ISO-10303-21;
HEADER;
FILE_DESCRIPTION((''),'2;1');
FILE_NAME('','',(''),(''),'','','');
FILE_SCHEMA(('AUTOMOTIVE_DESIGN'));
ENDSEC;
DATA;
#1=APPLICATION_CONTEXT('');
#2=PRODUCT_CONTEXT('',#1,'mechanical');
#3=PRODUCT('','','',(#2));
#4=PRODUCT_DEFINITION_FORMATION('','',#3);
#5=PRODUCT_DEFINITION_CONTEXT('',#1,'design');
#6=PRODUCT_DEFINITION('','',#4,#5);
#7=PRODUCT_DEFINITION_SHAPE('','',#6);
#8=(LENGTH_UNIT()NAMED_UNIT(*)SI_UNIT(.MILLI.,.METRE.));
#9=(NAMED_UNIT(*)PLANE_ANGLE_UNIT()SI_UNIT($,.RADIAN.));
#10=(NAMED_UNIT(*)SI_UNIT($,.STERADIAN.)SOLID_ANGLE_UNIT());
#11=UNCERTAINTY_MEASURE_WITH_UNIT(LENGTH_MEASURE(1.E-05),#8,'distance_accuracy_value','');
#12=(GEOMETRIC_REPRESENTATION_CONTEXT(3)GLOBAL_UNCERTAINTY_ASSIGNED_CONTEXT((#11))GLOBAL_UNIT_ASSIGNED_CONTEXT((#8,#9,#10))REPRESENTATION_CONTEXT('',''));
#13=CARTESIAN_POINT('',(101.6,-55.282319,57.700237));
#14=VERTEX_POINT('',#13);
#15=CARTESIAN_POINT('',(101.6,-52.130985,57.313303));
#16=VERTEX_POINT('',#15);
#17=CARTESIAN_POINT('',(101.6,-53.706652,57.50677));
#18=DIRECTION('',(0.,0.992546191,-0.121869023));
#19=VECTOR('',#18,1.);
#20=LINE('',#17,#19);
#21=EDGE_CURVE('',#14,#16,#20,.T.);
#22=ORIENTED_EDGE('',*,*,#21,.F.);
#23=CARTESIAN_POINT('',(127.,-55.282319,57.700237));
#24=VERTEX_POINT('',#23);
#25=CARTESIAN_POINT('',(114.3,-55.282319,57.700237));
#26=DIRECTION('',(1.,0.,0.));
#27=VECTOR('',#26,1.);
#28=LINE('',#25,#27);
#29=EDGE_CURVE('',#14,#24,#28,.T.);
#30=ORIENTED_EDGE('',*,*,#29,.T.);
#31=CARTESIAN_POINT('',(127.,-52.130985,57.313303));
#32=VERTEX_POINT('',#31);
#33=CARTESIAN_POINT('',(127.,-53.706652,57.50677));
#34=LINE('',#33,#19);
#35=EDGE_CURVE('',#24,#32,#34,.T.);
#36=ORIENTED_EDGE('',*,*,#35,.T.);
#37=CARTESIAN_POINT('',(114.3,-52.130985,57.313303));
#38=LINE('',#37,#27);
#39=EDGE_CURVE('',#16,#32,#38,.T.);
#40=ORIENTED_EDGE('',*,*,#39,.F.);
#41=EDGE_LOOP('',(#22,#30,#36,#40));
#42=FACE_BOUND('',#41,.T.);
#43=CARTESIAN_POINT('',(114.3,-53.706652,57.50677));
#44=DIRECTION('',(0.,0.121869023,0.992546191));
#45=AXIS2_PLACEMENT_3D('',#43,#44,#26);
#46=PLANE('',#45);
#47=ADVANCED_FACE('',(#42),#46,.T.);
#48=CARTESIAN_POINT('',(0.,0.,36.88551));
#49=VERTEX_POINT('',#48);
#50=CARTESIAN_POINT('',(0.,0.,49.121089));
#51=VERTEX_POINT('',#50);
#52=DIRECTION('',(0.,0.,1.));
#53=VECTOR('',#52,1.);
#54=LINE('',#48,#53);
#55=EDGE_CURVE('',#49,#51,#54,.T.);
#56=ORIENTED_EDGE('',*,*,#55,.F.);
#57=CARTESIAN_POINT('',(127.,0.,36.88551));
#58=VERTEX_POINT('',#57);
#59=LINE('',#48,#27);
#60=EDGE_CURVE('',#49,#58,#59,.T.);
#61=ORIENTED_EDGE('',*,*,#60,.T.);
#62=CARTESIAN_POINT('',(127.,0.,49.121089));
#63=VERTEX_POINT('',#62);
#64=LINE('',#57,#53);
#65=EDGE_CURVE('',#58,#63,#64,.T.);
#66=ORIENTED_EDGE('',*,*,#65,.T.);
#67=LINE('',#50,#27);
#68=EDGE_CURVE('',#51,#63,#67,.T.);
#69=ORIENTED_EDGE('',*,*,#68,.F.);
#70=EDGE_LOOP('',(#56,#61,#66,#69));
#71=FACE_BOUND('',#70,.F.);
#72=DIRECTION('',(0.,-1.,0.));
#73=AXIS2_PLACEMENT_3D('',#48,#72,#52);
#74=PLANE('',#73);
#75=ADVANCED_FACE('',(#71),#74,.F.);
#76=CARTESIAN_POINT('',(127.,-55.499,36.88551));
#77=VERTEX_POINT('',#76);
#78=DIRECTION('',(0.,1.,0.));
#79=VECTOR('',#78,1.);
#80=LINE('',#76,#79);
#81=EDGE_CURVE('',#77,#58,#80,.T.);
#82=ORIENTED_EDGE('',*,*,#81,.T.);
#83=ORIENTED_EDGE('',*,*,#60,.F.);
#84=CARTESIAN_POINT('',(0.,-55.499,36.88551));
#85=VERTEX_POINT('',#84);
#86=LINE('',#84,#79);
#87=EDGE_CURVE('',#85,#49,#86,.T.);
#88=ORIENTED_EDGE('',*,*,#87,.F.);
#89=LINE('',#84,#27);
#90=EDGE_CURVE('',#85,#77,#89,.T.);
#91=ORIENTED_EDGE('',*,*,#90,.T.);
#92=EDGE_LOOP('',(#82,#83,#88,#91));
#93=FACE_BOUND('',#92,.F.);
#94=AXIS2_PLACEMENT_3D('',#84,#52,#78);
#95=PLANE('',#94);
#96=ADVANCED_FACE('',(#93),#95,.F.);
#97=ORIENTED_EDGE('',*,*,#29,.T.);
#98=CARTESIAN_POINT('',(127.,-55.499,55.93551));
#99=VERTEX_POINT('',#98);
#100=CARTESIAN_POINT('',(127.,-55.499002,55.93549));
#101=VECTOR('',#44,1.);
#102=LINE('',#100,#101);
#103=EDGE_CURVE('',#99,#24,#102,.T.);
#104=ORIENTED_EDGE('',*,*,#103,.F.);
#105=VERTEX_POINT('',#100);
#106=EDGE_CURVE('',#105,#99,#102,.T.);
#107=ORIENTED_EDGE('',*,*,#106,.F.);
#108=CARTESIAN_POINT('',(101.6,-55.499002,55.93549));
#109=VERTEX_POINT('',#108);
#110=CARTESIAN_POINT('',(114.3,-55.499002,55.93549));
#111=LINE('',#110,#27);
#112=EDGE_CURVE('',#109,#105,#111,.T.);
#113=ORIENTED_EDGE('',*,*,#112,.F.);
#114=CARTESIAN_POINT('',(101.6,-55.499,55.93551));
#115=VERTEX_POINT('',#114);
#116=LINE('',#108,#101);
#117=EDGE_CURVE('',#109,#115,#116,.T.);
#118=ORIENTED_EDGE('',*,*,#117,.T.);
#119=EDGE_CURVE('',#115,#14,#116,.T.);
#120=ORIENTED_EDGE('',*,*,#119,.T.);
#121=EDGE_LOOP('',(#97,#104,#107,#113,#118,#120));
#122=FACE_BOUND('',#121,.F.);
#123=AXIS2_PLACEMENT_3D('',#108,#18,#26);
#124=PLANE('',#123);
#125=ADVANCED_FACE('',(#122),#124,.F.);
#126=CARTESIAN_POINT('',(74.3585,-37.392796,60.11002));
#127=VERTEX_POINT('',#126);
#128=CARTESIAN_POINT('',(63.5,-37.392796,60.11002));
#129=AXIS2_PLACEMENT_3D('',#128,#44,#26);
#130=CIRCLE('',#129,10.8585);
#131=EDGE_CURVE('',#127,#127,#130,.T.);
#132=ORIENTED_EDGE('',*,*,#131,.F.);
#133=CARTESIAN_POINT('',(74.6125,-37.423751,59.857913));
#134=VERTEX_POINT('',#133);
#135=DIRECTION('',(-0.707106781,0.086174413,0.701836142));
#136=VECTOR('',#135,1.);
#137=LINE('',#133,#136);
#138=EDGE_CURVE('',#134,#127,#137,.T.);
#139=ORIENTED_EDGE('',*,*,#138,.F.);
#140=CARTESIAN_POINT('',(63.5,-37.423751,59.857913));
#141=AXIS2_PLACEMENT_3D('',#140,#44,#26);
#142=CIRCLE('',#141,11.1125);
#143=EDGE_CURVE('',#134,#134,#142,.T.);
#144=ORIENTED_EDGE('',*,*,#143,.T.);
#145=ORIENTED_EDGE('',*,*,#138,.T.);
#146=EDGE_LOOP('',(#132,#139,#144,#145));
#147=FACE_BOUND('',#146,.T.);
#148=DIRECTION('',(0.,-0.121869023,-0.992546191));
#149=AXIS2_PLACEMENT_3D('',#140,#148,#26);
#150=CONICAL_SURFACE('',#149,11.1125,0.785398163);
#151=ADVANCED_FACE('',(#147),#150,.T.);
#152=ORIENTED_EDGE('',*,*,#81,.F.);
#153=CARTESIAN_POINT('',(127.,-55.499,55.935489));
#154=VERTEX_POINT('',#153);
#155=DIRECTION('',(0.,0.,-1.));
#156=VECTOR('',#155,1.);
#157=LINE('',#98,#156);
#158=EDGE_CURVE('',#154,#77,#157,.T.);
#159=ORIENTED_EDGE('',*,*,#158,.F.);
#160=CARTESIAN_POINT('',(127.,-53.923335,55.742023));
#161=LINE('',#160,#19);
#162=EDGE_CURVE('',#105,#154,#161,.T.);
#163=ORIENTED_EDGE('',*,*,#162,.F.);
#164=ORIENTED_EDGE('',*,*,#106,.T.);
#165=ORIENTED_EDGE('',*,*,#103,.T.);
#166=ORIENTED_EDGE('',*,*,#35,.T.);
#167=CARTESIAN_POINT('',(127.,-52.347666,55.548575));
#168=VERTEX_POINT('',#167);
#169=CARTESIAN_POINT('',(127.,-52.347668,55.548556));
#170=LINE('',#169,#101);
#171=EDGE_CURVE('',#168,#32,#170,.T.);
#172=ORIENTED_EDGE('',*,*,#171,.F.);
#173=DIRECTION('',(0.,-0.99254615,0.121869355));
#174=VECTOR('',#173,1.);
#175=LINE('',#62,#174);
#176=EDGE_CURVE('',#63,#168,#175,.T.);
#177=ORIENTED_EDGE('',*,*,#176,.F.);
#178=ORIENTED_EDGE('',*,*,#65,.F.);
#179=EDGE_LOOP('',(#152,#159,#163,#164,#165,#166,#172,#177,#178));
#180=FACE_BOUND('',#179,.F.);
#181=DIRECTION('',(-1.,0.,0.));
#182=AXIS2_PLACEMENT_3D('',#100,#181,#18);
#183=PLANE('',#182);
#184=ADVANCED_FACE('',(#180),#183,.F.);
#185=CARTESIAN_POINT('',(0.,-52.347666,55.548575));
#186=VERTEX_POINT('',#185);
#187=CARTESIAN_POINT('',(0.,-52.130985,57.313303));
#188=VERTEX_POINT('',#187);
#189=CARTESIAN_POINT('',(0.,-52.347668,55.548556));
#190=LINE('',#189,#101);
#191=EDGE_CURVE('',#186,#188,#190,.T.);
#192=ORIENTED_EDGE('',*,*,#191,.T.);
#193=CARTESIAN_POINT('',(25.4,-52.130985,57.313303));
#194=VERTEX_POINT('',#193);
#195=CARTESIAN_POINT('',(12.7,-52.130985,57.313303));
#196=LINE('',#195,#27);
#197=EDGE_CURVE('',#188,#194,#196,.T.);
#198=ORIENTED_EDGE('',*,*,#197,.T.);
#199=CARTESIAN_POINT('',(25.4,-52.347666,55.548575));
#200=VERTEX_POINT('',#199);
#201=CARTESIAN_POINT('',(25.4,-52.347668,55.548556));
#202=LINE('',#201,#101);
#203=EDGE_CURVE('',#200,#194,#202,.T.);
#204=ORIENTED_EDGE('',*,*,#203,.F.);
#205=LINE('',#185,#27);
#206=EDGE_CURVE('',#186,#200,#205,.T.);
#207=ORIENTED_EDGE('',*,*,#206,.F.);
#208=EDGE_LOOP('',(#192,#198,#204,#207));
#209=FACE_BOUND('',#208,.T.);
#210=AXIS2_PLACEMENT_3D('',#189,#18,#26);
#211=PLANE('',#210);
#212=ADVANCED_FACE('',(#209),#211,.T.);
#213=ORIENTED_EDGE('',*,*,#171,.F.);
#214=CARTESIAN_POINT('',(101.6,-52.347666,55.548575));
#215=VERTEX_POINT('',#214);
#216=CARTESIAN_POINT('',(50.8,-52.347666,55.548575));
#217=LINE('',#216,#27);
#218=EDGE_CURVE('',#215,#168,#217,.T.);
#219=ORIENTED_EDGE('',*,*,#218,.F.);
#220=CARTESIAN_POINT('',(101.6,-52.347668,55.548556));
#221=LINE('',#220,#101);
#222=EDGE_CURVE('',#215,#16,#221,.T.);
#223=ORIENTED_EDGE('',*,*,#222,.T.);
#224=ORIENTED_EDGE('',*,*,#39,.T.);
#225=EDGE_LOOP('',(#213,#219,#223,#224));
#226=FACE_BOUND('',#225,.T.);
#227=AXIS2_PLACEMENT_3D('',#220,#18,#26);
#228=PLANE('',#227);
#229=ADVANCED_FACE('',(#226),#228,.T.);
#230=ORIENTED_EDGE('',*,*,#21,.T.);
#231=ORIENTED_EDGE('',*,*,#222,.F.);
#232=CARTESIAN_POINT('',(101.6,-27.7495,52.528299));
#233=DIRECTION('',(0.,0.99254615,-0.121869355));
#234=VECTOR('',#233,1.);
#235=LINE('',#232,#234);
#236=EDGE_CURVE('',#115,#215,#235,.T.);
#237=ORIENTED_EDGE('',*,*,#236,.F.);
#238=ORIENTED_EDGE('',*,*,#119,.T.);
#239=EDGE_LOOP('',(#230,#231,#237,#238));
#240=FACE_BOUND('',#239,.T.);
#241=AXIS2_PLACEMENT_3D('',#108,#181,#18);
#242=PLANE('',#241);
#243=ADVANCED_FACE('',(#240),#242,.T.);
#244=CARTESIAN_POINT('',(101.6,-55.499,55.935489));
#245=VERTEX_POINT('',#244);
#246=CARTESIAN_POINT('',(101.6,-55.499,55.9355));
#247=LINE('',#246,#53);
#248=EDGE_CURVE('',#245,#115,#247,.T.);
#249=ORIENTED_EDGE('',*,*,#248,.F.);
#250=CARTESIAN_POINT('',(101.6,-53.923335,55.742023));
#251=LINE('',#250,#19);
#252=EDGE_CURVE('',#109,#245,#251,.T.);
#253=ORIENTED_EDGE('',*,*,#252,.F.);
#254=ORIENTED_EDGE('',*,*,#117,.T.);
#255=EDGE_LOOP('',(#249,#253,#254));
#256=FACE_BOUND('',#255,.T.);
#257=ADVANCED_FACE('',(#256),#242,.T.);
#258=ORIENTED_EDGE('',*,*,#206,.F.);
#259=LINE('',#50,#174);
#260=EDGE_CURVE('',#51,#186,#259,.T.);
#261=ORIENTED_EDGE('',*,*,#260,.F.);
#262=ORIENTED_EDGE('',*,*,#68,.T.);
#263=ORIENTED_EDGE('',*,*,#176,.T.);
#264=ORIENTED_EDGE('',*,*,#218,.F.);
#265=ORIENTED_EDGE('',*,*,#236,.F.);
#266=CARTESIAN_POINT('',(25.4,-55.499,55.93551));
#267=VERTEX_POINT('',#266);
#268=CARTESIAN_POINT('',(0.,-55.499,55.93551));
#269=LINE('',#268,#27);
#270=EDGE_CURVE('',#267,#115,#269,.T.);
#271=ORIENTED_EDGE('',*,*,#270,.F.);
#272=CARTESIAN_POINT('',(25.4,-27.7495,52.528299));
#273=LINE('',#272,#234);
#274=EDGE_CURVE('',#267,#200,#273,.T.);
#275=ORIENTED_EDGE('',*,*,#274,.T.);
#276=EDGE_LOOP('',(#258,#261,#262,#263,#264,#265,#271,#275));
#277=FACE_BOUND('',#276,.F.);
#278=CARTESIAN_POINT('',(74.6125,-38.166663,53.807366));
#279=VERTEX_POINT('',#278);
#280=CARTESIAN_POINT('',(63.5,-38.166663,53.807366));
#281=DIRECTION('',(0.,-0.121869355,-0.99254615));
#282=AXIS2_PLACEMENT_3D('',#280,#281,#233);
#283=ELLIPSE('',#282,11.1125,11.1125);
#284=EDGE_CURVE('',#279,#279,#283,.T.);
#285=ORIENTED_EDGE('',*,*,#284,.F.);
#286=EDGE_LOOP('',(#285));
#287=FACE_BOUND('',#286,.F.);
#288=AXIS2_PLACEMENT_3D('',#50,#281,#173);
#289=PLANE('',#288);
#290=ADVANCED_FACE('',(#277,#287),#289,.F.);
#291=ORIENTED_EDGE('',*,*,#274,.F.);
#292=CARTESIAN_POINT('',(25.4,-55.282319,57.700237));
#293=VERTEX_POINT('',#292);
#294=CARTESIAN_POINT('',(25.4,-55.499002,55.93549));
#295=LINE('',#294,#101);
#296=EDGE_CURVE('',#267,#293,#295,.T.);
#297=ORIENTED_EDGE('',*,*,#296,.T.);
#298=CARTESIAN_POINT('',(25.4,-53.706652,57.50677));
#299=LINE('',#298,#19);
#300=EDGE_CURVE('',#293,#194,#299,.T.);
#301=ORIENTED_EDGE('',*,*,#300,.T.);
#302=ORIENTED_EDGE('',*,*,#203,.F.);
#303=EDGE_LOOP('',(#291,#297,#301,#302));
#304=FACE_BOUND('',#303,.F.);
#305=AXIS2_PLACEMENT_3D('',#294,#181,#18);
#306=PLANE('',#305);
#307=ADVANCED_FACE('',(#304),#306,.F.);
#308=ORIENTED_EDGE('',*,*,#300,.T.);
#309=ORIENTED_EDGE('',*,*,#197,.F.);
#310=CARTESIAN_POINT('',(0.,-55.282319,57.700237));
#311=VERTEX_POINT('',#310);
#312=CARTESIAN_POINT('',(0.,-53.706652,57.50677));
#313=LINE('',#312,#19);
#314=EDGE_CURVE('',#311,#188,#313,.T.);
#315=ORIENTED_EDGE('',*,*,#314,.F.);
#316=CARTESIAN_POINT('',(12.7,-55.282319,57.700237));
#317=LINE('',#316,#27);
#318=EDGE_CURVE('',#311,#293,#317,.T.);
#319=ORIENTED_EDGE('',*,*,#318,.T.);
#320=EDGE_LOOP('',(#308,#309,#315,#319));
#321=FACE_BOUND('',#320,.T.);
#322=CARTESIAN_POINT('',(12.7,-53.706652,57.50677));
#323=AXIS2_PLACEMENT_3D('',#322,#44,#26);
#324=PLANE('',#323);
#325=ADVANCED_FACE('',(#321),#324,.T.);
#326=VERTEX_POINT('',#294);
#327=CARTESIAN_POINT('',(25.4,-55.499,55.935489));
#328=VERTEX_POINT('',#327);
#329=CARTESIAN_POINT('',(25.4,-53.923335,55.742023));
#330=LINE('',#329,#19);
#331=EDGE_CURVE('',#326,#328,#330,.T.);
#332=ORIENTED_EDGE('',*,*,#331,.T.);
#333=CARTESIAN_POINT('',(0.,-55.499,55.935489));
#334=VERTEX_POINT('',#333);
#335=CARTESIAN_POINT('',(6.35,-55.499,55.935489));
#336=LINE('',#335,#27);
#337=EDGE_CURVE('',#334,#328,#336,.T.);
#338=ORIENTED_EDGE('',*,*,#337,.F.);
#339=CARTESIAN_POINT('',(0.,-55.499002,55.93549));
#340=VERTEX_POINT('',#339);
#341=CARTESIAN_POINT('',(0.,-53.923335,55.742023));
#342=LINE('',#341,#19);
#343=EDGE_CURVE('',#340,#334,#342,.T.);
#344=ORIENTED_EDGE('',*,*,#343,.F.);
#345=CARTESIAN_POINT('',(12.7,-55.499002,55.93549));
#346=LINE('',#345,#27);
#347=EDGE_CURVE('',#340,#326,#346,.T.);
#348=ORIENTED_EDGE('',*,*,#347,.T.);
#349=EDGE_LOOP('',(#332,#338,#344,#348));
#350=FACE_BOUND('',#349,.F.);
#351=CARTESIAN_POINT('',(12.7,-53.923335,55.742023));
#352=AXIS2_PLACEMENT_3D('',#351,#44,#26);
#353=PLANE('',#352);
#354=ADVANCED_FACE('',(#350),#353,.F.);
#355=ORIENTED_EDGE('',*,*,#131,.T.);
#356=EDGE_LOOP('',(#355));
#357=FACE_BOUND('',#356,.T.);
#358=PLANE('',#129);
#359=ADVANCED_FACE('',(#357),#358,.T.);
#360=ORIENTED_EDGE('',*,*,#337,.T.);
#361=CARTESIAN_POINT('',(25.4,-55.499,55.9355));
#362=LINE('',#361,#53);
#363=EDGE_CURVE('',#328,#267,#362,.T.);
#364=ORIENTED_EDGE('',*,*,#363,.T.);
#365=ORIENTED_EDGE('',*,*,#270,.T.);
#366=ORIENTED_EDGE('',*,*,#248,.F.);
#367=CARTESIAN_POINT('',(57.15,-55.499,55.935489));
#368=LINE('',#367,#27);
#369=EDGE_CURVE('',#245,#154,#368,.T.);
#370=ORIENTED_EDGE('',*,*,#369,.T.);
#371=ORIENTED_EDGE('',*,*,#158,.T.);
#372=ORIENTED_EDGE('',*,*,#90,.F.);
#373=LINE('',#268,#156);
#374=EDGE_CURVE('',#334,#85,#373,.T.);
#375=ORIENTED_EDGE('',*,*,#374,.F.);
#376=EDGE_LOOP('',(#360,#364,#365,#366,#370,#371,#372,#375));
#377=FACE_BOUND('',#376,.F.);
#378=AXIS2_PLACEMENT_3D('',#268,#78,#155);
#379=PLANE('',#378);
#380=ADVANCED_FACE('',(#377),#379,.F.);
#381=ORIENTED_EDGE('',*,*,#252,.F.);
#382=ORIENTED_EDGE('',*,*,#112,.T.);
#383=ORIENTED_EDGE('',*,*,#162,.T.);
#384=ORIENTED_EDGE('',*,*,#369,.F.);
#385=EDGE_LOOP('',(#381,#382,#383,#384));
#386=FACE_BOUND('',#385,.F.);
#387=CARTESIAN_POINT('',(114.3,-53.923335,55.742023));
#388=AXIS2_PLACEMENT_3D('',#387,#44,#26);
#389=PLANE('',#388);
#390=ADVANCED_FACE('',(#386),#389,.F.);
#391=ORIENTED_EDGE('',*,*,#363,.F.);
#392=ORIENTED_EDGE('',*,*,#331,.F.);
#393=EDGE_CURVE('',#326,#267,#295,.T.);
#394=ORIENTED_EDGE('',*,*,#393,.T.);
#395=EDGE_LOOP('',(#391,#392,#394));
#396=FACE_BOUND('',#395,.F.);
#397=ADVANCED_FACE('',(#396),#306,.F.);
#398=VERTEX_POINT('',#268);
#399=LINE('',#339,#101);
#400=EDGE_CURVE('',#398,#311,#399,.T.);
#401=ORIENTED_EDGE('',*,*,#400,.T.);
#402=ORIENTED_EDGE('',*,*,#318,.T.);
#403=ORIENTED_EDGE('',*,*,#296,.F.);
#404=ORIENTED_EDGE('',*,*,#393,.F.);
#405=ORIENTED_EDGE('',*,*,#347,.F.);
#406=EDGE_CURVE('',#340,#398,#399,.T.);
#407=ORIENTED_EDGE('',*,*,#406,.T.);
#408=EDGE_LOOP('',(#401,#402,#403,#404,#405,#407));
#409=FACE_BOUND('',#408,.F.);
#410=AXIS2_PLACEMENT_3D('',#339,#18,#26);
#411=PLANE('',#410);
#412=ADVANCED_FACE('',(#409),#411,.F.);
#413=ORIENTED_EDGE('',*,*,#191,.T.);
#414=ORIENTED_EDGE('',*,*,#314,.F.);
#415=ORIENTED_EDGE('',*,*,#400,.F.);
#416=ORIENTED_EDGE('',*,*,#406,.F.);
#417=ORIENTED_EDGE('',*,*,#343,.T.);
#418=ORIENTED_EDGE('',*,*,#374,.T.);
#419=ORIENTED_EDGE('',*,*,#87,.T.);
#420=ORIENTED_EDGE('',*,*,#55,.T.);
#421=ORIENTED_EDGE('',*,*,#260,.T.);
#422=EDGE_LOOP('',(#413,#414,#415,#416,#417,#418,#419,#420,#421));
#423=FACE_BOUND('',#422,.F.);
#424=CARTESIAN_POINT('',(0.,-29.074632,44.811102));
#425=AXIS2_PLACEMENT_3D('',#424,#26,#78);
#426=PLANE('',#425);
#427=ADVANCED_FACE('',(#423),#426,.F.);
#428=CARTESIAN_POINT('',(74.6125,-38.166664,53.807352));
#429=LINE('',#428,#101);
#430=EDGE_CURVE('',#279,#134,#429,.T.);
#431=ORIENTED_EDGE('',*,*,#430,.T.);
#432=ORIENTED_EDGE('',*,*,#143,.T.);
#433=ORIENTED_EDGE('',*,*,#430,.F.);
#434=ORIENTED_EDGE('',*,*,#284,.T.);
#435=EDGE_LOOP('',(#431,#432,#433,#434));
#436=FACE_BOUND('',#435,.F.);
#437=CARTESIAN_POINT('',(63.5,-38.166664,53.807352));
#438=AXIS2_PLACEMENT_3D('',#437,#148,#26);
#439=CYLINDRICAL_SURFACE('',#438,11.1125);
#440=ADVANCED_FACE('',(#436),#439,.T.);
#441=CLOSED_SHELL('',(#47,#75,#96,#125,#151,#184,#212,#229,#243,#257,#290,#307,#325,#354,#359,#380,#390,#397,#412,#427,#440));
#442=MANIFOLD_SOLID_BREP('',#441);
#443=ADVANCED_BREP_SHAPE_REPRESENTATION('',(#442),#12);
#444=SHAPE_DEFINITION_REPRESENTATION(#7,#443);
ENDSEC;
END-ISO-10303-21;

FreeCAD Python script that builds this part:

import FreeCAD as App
import Part
import Sketcher

V = App.Vector
Q = App.Units.Quantity


def edges_at(feature, points):
    """Names of the edges that pass closest to the given points."""
    edges = feature.Shape.Edges
    near = lambda p: min(range(len(edges)), key=lambda i: edges[i].distToShape(Part.Vertex(*p))[0])
    return sorted({f"Edge{near(p) + 1}" for p in points})


def add_polygon(sketch, points):
    """Adds a closed chain of lines whose ends are joined by coincident constraints."""
    first, n = sketch.GeometryCount, len(points)
    for a, b in zip(points, points[1:] + points[:1]):
        sketch.addGeometry(Part.LineSegment(App.Vector(*a, 0), App.Vector(*b, 0)), False)
    for i in range(n):
        sketch.addConstraint(Sketcher.Constraint("Coincident", first + i, 2, first + (i + 1) % n, 1))

doc = App.newDocument("Part")
params = doc.addObject("Spreadsheet::Sheet", "Params")
for row, (alias, value) in enumerate([
    ("sketch1_height", "0.75 in"),
    ("sketch1_width", "2.185 in"),
    ("pad1_length", "5 in"),
    ("sketch2_diameter", "0.875 in"),
    ("pad2_length", "0.25 in"),
    ("chamfer_size", "0.01 in"),
    ("sketch3_width", "1 in"),
    ("sketch3_height", "0.125 in"),
    ("pad3_length", "0.07 in"),
], start=1):
    params.set(f"A{row}", alias)
    params.set(f"B{row}", "=" + value)
    params.setAlias(f"B{row}", alias)

body = doc.addObject("PartDesign::Body", "Body")

# Sketch on YZ plane
sketch1 = body.newObject("Sketcher::SketchObject", "Sketch")
sketch1.AttachmentSupport = (doc.getObject("YZ_Plane"), [""])
sketch1.MapMode = "FlatFace"
add_polygon(sketch1, [(-55, 37), (0, 37), (0, 49), (-55, 56)])  # lines 0-3
sketch1.addConstraint([
    Sketcher.Constraint("Horizontal", 0),
    Sketcher.Constraint("Vertical", 1),
    Sketcher.Constraint("Vertical", 3),
    Sketcher.Constraint("PointOnObject", 0, 2, -2),
    Sketcher.Constraint("Angle", 2, Q("172.999999 deg")),
    Sketcher.Constraint("DistanceY", 3, 2, 3, 1, Q("0.75 in")),
    Sketcher.Constraint("DistanceX", 0, 1, 0, 2, Q("2.185 in")),
    Sketcher.Constraint("DistanceY", -1, 1, 0, 2, Q("36.88551 mm")),
])
sketch1.setExpression("Constraints[9]", "Params.sketch1_height")
sketch1.setExpression("Constraints[10]", "Params.sketch1_width")
pad1 = body.newObject("PartDesign::Pad", "Pad")
pad1.Profile = sketch1
pad1.setExpression("Length", "Params.pad1_length")

# Sketch on an angled plane
sketch2 = body.newObject("Sketcher::SketchObject", "Sketch001")
sketch2.Placement = App.Placement(V(0, 5.941734, 48.391536), App.Rotation(V(1, 0, 0), V(0, 0.992546191, -0.121869023), V(0, 0.121869023, 0.992546191), "ZXY"))
sketch2.addGeometry(Part.Circle(V(64, -44, 0), V(0, 0, 1), 11), False)
sketch2.addConstraint([
    Sketcher.Constraint("Diameter", 0, Q("0.875 in")),
    Sketcher.Constraint("DistanceX", -1, 1, 0, 3, Q("2.5 in")),
    Sketcher.Constraint("DistanceY", 0, 3, -1, 1, Q("44.439643 mm")),
])
sketch2.setExpression("Constraints[0]", "Params.sketch2_diameter")
pad2 = body.newObject("PartDesign::Pad", "Pad001")
pad2.Profile = sketch2
pad2.setExpression("Length", "Params.pad2_length")
doc.recompute()

chamfer = body.newObject("PartDesign::Chamfer", "Chamfer")
chamfer.Base = (pad2, edges_at(pad2, [(52.388, -37.393, 60.11)]))
chamfer.setExpression("Size", "Params.chamfer_size")

# Sketch on an angled plane
sketch3 = body.newObject("Sketcher::SketchObject", "Sketch002")
sketch3.Placement = App.Placement(V(0, 5.941734, 48.391536), App.Rotation(V(1, 0, 0), V(0, 0.992546191, -0.121869023), V(0, 0.121869023, 0.992546191), "ZXY"))
add_polygon(sketch3, [(101.6, -58.7), (101.6, -61.9), (127, -61.9), (127, -58.7)])  # lines 0-3
add_polygon(sketch3, [(0, -58.7), (0, -61.9), (25.4, -61.9), (25.4, -58.7)])  # lines 4-7
sketch3.addConstraint([
    Sketcher.Constraint("Vertical", 0),
    Sketcher.Constraint("Horizontal", 1),
    Sketcher.Constraint("Vertical", 2),
    Sketcher.Constraint("Horizontal", 3),
    Sketcher.Constraint("Vertical", 4),
    Sketcher.Constraint("Horizontal", 5),
    Sketcher.Constraint("Vertical", 6),
    Sketcher.Constraint("Horizontal", 7),
    Sketcher.Constraint("PointOnObject", 4, 2, -2),
    Sketcher.Constraint("Horizontal", 1, 2, 4, 2),
    Sketcher.Constraint("Horizontal", 3, 2, 6, 2),
    Sketcher.Constraint("Equal", 3, 5),
    Sketcher.Constraint("DistanceX", 1, 1, 1, 2, Q("1 in")),
    Sketcher.Constraint("DistanceX", -1, 1, 0, 2, Q("4 in")),
    Sketcher.Constraint("DistanceY", 0, 2, 0, 1, Q("0.125 in")),
    Sketcher.Constraint("DistanceY", 0, 2, -1, 1, Q("61.902143 mm")),
])
sketch3.setExpression("Constraints[20]", "Params.sketch3_width")
sketch3.setExpression("Constraints[22]", "Params.sketch3_height")
pad3 = body.newObject("PartDesign::Pad", "Pad002")
pad3.Profile = sketch3
pad3.setExpression("Length", "Params.pad3_length")

doc.recompute()
